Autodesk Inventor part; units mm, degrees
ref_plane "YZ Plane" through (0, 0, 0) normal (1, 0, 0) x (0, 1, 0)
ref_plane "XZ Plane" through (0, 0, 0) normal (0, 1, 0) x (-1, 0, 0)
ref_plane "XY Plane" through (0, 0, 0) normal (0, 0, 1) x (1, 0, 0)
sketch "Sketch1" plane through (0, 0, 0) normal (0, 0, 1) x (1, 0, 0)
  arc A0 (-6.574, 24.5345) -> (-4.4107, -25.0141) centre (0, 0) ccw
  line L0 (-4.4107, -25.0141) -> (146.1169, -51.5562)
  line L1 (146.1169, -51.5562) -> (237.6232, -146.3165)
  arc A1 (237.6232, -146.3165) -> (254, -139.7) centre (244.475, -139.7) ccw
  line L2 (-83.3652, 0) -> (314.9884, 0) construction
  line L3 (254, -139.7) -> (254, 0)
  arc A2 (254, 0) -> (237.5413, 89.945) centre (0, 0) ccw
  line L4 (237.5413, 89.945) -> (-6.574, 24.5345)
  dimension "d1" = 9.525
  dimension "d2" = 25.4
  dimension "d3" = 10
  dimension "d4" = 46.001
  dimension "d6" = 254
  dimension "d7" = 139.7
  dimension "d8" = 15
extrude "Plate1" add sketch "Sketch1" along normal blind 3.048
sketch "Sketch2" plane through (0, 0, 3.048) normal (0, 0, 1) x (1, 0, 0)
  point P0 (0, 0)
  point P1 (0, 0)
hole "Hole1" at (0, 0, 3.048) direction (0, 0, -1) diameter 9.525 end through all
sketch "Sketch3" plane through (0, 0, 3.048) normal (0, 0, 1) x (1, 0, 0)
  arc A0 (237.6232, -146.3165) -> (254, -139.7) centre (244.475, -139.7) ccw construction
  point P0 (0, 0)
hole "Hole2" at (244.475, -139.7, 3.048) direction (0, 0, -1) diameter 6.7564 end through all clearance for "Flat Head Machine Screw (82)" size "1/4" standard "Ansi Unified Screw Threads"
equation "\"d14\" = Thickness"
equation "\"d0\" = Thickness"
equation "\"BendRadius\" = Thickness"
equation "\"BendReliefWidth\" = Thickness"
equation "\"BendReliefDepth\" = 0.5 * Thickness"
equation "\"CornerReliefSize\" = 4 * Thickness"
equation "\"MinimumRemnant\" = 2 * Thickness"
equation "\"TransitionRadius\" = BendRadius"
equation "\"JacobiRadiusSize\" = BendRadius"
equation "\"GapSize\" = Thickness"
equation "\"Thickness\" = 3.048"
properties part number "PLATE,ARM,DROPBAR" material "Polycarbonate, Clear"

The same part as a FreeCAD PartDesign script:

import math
import FreeCAD as App
import Part
import Sketcher
from FreeCAD import Vector
Q = App.Units.Quantity

doc = App.newDocument("Part")
params = doc.addObject("Spreadsheet::Sheet", "Params")
for row, (alias, value) in enumerate([
    ("sketch1_radius", "1 in"),
    ("sketch1_height", "5.5 in"),
    ("sketch1_radius2", "0.375 in"),
    ("pad1_length", "0.12 in"),
    ("sketch2_diameter", "0.375 in"),
    ("hole_diameter", "0.375 in"),
    ("sketch3_diameter", "0.266 in"),
    ("hole2_diameter", "0.266 in"),
], start=1):
    params.set(f"A{row}", alias)
    params.set(f"B{row}", "=" + value)
    params.setAlias(f"B{row}", alias)

body = doc.addObject("PartDesign::Body", "Body")

# Sketch on XY plane
sketch1 = body.newObject("Sketcher::SketchObject", "Sketch")
sketch1.AttachmentSupport = (doc.getObject("XY_Plane"), [""])
sketch1.MapMode = "FlatFace"
sketch1.addGeometry(Part.LineSegment(Vector(237.5413, 89.945, 0), Vector(-6.574, 24.5345, 0)), False)
sketch1.addGeometry(Part.ArcOfCircle(Part.Circle(Vector(0, 0, 0), Vector(0, 0, 1), 25.399984), math.radians(105.000001), math.radians(259.999913)), False)
sketch1.addGeometry(Part.LineSegment(Vector(-4.4107, -25.0141, 0), Vector(146.1169, -51.5562, 0)), False)
sketch1.addGeometry(Part.LineSegment(Vector(146.1169, -51.5562, 0), Vector(237.6232, -146.3165, 0)), False)
sketch1.addGeometry(Part.ArcOfCircle(Part.Circle(Vector(244.475, -139.7, 0), Vector(0, 0, 1), 9.52498), math.radians(-136.000893), math.radians(0)), False)
sketch1.addGeometry(Part.LineSegment(Vector(254, -139.7, 0), Vector(254, 0, 0)), False)
sketch1.addGeometry(Part.ArcOfCircle(Part.Circle(Vector(0.001673, 0.000152, 0), Vector(0, 0, 1), 253.998327), math.radians(-0.000034), math.radians(20.73927)), False)
sketch1.addConstraint(Sketcher.Constraint("Tangent", 0, 2, 1, 1))
sketch1.addConstraint(Sketcher.Constraint("Tangent", 1, 2, 2, 1))
sketch1.addConstraint(Sketcher.Constraint("Coincident", 2, 2, 3, 1))
sketch1.addConstraint(Sketcher.Constraint("Tangent", 3, 2, 4, 1))
sketch1.addConstraint(Sketcher.Constraint("Tangent", 4, 2, 5, 1))
sketch1.addConstraint(Sketcher.Constraint("Tangent", 5, 2, 6, 1))
sketch1.addConstraint(Sketcher.Constraint("Coincident", 6, 2, 0, 1))
sketch1.addConstraint(Sketcher.Constraint("Vertical", 5))
sketch1.addConstraint(Sketcher.Constraint("Coincident", 1, 3, -1, 1))
sketch1.addConstraint(Sketcher.Constraint("PointOnObject", 6, 3, -1))
sketch1.addConstraint(Sketcher.Constraint("Radius", 1, Q("1 in")))
sketch1.addConstraint(Sketcher.Constraint("DistanceY", 5, 1, 5, 2, Q("5.5 in")))
sketch1.addConstraint(Sketcher.Constraint("DistanceX", -1, 1, 4, 2, Q("10 in")))
sketch1.addConstraint(Sketcher.Constraint("Angle", 2, Q("-10 deg")))
sketch1.addConstraint(Sketcher.Constraint("Angle", 3, Q("-46.0008 deg")))
sketch1.addConstraint(Sketcher.Constraint("Radius", 4, Q("0.375 in")))
sketch1.addConstraint(Sketcher.Constraint("Angle", 0, Q("-165 deg")))
sketch1.addConstraint(Sketcher.Constraint("Radius", 6, Q("253.9983 mm")))
sketch1.setExpression("Constraints[10]", "Params.sketch1_radius")
sketch1.setExpression("Constraints[11]", "Params.sketch1_height")
sketch1.setExpression("Constraints[15]", "Params.sketch1_radius2")
pad1 = body.newObject("PartDesign::Pad", "Pad")
pad1.Profile = sketch1
pad1.setExpression("Length", "Params.pad1_length")

# Sketch on XY plane
sketch2 = body.newObject("Sketcher::SketchObject", "Sketch001")
sketch2.AttachmentSupport = (doc.getObject("XY_Plane"), [""])
sketch2.MapMode = "FlatFace"
sketch2.AttachmentOffset = App.Placement(Vector(0, 0, 0.12 * 25.4), App.Rotation())
sketch2.addGeometry(Part.Circle(Vector(0, 0, 0), Vector(0, 0, 1), 4.7625), False)
sketch2.addConstraint(Sketcher.Constraint("Coincident", 0, 3, -1, 1))
sketch2.addConstraint(Sketcher.Constraint("Diameter", 0, Q("0.375 in")))
sketch2.setExpression("Constraints[1]", "Params.sketch2_diameter")
doc.recompute()
hole = body.newObject("PartDesign::Hole", "Hole")
hole.Profile = sketch2
hole.ThreadType = "None"
hole.setExpression("Diameter", "Params.hole_diameter")
hole.DepthType = "ThroughAll"

# Sketch on XY plane
sketch3 = body.newObject("Sketcher::SketchObject", "Sketch002")
sketch3.AttachmentSupport = (doc.getObject("XY_Plane"), [""])
sketch3.MapMode = "FlatFace"
sketch3.AttachmentOffset = App.Placement(Vector(0, 0, 0.12 * 25.4), App.Rotation())
sketch3.addGeometry(Part.Circle(Vector(244.475, -139.7, 0), Vector(0, 0, 1), 3.3782), False)
sketch3.addConstraint(Sketcher.Constraint("Diameter", 0, Q("0.266 in")))
sketch3.addConstraint(Sketcher.Constraint("DistanceY", 0, 3, -1, 1, Q("5.5 in")))
sketch3.addConstraint(Sketcher.Constraint("DistanceX", -1, 1, 0, 3, Q("9.625 in")))
sketch3.setExpression("Constraints[0]", "Params.sketch3_diameter")
doc.recompute()
hole2 = body.newObject("PartDesign::Hole", "Hole001")
hole2.Profile = sketch3
hole2.ThreadType = "None"
hole2.setExpression("Diameter", "Params.hole2_diameter")
hole2.DepthType = "ThroughAll"

doc.recompute()
